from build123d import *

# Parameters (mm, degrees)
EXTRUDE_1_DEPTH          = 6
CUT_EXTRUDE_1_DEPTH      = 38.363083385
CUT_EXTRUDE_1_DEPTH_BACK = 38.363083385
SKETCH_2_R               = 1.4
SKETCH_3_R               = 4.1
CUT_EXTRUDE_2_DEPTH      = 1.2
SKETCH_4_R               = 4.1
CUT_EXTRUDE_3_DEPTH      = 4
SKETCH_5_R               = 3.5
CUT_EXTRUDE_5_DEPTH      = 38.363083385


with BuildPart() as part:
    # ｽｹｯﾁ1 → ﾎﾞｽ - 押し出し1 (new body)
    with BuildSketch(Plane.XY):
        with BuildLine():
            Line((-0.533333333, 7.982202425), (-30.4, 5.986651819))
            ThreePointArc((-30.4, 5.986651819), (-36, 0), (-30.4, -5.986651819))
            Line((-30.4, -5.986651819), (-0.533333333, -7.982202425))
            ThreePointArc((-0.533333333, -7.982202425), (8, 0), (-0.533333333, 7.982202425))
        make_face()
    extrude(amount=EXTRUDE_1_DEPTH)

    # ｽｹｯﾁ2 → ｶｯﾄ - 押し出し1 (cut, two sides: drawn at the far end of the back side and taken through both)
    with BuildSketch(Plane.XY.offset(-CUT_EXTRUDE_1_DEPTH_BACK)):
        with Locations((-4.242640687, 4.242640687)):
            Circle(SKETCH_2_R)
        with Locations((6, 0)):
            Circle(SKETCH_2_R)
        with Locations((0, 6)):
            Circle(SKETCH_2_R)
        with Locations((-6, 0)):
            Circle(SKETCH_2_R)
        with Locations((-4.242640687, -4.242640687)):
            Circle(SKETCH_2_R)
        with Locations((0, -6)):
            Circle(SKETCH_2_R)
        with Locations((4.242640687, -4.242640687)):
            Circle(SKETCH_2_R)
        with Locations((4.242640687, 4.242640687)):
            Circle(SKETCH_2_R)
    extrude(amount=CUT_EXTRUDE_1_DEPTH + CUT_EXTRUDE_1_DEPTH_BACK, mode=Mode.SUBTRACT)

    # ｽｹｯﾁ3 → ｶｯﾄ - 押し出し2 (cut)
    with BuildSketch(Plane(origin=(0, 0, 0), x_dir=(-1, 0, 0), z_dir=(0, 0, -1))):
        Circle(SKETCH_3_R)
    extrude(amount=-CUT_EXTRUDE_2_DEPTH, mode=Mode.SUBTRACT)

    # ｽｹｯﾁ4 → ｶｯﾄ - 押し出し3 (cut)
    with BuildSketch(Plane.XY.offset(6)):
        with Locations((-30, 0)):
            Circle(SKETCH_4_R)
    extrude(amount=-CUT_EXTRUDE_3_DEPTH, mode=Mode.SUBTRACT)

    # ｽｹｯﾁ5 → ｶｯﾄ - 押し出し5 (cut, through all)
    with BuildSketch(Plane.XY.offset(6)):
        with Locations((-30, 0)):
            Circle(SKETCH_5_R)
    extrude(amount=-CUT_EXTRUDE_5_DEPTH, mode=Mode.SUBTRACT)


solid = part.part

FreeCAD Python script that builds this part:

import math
import FreeCAD as App
import Part
import Sketcher

V = App.Vector
Q = App.Units.Quantity

doc = App.newDocument("Part")
body = doc.addObject("PartDesign::Body", "Body")

# Sketch on XY plane
sketch1 = doc.addObject("Sketcher::SketchObject", "Sketch")
body.addObject(sketch1)
sketch1.AttachmentSupport = (doc.XY_Plane, [""])
sketch1.MapMode = "FlatFace"
sketch1.addGeometry([
    Part.LineSegment(V(-1, 8, 0), V(-30, 6, 0)),
    Part.ArcOfCircle(Part.Circle(V(-30, 0, 0), V(0, 0, 1), 6), math.radians(94), math.radians(266)),
    Part.LineSegment(V(-30, -6, 0), V(-1, -8, 0)),
    Part.ArcOfCircle(Part.Circle(V(0, 0, 0), V(0, 0, 1), 8), math.radians(-94), math.radians(94)),
], False)
sketch1.addConstraint([
    Sketcher.Constraint("Tangent", 0, 2, 1, 1),
    Sketcher.Constraint("Tangent", 1, 2, 2, 1),
    Sketcher.Constraint("Tangent", 2, 2, 3, 1),
    Sketcher.Constraint("Tangent", 3, 2, 0, 1),
    Sketcher.Constraint("Coincident", 3, 3, -1, 1),
    Sketcher.Constraint("PointOnObject", 1, 3, -1),
    Sketcher.Constraint("Radius", 1, Q("6 mm")),
    Sketcher.Constraint("Radius", 3, Q("8 mm")),
    Sketcher.Constraint("DistanceX", 1, 3, -1, 1, Q("30 mm")),
])
pad1 = doc.addObject("PartDesign::Pad", "Pad")
body.addObject(pad1)
pad1.Profile = sketch1
pad1.Length = 6

# Sketch on XY plane
sketch2 = doc.addObject("Sketcher::SketchObject", "Sketch001")
body.addObject(sketch2)
sketch2.AttachmentSupport = (doc.XY_Plane, [""])
sketch2.MapMode = "FlatFace"
sketch2.addGeometry([
    Part.Circle(V(-4.2, 4.2, 0), V(0, 0, 1), 1.4),  # 0
    Part.Circle(V(6, 0, 0), V(0, 0, 1), 1.4),  # 1
    Part.Circle(V(0, 6, 0), V(0, 0, 1), 1.4),  # 2
    Part.Circle(V(-6, 0, 0), V(0, 0, 1), 1.4),  # 3
    Part.Circle(V(-4.2, -4.2, 0), V(0, 0, 1), 1.4),  # 4
    Part.Circle(V(0, -6, 0), V(0, 0, 1), 1.4),  # 5
    Part.Circle(V(4.2, -4.2, 0), V(0, 0, 1), 1.4),  # 6
    Part.Circle(V(4.2, 4.2, 0), V(0, 0, 1), 1.4),  # 7
], False)
sketch2.addConstraint([
    Sketcher.Constraint("Equal", 0, 1),
    Sketcher.Constraint("Equal", 1, 2),
    Sketcher.Constraint("Equal", 2, 3),
    Sketcher.Constraint("Equal", 3, 4),
    Sketcher.Constraint("Equal", 4, 5),
    Sketcher.Constraint("Equal", 5, 6),
    Sketcher.Constraint("Equal", 6, 7),
    Sketcher.Constraint("Symmetric", 1, 3, 3, 3, -1, 1),
    Sketcher.Constraint("Symmetric", 2, 3, 5, 3, -1, 1),
    Sketcher.Constraint("Symmetric", 0, 3, 6, 3, -1, 1),
    Sketcher.Constraint("Symmetric", 4, 3, 7, 3, -1, 1),
    Sketcher.Constraint("Symmetric", 4, 3, 6, 3, -2),
    Sketcher.Constraint("PointOnObject", 1, 3, -1),
    Sketcher.Constraint("PointOnObject", 2, 3, -2),
    Sketcher.Constraint("Diameter", 0, Q("2.8 mm")),
    Sketcher.Constraint("DistanceX", -1, 1, 1, 3, Q("6 mm")),
    Sketcher.Constraint("DistanceY", -1, 1, 2, 3, Q("6 mm")),
    Sketcher.Constraint("DistanceX", 0, 3, -1, 1, Q("4.242641 mm")),
    Sketcher.Constraint("DistanceY", -1, 1, 0, 3, Q("4.242641 mm")),
])
pocket1 = doc.addObject("PartDesign::Pocket", "Pocket")
body.addObject(pocket1)
pocket1.Profile = sketch2
pocket1.Type = "ThroughAll"
pocket1.Midplane = True

# Sketch on XY plane
sketch3 = doc.addObject("Sketcher::SketchObject", "Sketch002")
body.addObject(sketch3)
sketch3.AttachmentSupport = (doc.XY_Plane, [""])
sketch3.MapMode = "FlatFace"
sketch3.addGeometry(Part.Circle(V(0, 0, 0), V(0, 0, 1), 4.1), False)
sketch3.addConstraint([
    Sketcher.Constraint("Coincident", 0, 3, -1, 1),
    Sketcher.Constraint("Diameter", 0, Q("8.2 mm")),
])
pocket2 = doc.addObject("PartDesign::Pocket", "Pocket001")
body.addObject(pocket2)
pocket2.Profile = sketch3
pocket2.Length = 1.2
pocket2.Reversed = True

# Sketch on XY plane
sketch4 = doc.addObject("Sketcher::SketchObject", "Sketch003")
body.addObject(sketch4)
sketch4.AttachmentSupport = (doc.XY_Plane, [""])
sketch4.MapMode = "FlatFace"
sketch4.AttachmentOffset = App.Placement(V(0, 0, 6), App.Rotation())
sketch4.addGeometry(Part.Circle(V(-30, 0, 0), V(0, 0, 1), 4.1), False)
sketch4.addConstraint([
    Sketcher.Constraint("PointOnObject", 0, 3, -1),
    Sketcher.Constraint("Diameter", 0, Q("8.2 mm")),
    Sketcher.Constraint("DistanceX", 0, 3, -1, 1, Q("30 mm")),
])
pocket3 = doc.addObject("PartDesign::Pocket", "Pocket002")
body.addObject(pocket3)
pocket3.Profile = sketch4
pocket3.Length = 4

# Sketch on XY plane
sketch5 = doc.addObject("Sketcher::SketchObject", "Sketch004")
body.addObject(sketch5)
sketch5.AttachmentSupport = (doc.XY_Plane, [""])
sketch5.MapMode = "FlatFace"
sketch5.AttachmentOffset = App.Placement(V(0, 0, 6), App.Rotation())
sketch5.addGeometry(Part.Circle(V(-30, 0, 0), V(0, 0, 1), 3.5), False)
sketch5.addConstraint([
    Sketcher.Constraint("PointOnObject", 0, 3, -1),
    Sketcher.Constraint("Diameter", 0, Q("7 mm")),
    Sketcher.Constraint("DistanceX", 0, 3, -1, 1, Q("30 mm")),
])
pocket4 = doc.addObject("PartDesign::Pocket", "Pocket003")
body.addObject(pocket4)
pocket4.Profile = sketch5
pocket4.Type = "ThroughAll"

doc.recompute()
